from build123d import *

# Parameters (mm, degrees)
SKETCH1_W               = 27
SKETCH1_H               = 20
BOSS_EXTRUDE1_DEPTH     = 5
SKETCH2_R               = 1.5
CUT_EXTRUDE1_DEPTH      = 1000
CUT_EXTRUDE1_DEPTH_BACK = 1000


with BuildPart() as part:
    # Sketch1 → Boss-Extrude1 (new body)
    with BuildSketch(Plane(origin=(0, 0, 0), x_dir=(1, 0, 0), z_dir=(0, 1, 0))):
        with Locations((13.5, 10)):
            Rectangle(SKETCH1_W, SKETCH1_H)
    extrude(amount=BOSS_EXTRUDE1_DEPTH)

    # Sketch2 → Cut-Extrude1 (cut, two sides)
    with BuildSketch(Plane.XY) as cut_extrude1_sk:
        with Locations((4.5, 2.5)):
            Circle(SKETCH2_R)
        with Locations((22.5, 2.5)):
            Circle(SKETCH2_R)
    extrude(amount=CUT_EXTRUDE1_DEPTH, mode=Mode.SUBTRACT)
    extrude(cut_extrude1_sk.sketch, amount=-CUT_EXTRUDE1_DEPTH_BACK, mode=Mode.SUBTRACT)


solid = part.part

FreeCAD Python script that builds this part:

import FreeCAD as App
import Part
import Sketcher
from FreeCAD import Vector
Q = App.Units.Quantity

doc = App.newDocument("Part")
body = doc.addObject("PartDesign::Body", "Body")

# Sketch on XZ plane
sketch1 = body.newObject("Sketcher::SketchObject", "Sketch")
sketch1.AttachmentSupport = (doc.getObject("XZ_Plane"), [""])
sketch1.MapMode = "FlatFace"
sketch1.addGeometry([
    Part.LineSegment(Vector(0, -20, 0), Vector(0, 0, 0)),
    Part.LineSegment(Vector(0, 0, 0), Vector(27, 0, 0)),
    Part.LineSegment(Vector(27, 0, 0), Vector(27, -20, 0)),
    Part.LineSegment(Vector(27, -20, 0), Vector(0, -20, 0)),
], False)
sketch1.addConstraint([
    Sketcher.Constraint("Coincident", 0, 2, 1, 1),
    Sketcher.Constraint("Coincident", 1, 2, 2, 1),
    Sketcher.Constraint("Coincident", 2, 2, 3, 1),
    Sketcher.Constraint("Coincident", 3, 2, 0, 1),
    Sketcher.Constraint("Vertical", 0),
    Sketcher.Constraint("Horizontal", 1),
    Sketcher.Constraint("Vertical", 2),
    Sketcher.Constraint("Horizontal", 3),
    Sketcher.Constraint("Coincident", 0, 2, -1, 1),
    Sketcher.Constraint("DistanceX", 1, 1, 1, 2, Q("27 mm")),
    Sketcher.Constraint("DistanceY", 0, 1, 0, 2, Q("20 mm")),
])
pad1 = body.newObject("PartDesign::Pad", "Pad")
pad1.Profile = sketch1
pad1.Length = 5
pad1.Reversed = True

# Sketch on XY plane
sketch2 = body.newObject("Sketcher::SketchObject", "Sketch001")
sketch2.AttachmentSupport = (doc.getObject("XY_Plane"), [""])
sketch2.MapMode = "FlatFace"
sketch2.addGeometry([
    Part.Circle(Vector(4.5, 2.5, 0), Vector(0, 0, 1), 1.5),
    Part.Circle(Vector(22.5, 2.5, 0), Vector(0, 0, 1), 1.5),
], False)
sketch2.addConstraint([
    Sketcher.Constraint("Equal", 0, 1),
    Sketcher.Constraint("Horizontal", 0, 3, 1, 3),
    Sketcher.Constraint("Diameter", 0, Q("3 mm")),
    Sketcher.Constraint("DistanceX", 0, 3, 1, 3, Q("18 mm")),
    Sketcher.Constraint("DistanceX", -1, 1, 0, 3, Q("4.5 mm")),
    Sketcher.Constraint("DistanceY", -1, 1, 0, 3, Q("2.5 mm")),
])
pocket1 = body.newObject("PartDesign::Pocket", "Pocket")
pocket1.Profile = sketch2
pocket1.Type = "ThroughAll"
pocket1.Midplane = True

doc.recompute()
